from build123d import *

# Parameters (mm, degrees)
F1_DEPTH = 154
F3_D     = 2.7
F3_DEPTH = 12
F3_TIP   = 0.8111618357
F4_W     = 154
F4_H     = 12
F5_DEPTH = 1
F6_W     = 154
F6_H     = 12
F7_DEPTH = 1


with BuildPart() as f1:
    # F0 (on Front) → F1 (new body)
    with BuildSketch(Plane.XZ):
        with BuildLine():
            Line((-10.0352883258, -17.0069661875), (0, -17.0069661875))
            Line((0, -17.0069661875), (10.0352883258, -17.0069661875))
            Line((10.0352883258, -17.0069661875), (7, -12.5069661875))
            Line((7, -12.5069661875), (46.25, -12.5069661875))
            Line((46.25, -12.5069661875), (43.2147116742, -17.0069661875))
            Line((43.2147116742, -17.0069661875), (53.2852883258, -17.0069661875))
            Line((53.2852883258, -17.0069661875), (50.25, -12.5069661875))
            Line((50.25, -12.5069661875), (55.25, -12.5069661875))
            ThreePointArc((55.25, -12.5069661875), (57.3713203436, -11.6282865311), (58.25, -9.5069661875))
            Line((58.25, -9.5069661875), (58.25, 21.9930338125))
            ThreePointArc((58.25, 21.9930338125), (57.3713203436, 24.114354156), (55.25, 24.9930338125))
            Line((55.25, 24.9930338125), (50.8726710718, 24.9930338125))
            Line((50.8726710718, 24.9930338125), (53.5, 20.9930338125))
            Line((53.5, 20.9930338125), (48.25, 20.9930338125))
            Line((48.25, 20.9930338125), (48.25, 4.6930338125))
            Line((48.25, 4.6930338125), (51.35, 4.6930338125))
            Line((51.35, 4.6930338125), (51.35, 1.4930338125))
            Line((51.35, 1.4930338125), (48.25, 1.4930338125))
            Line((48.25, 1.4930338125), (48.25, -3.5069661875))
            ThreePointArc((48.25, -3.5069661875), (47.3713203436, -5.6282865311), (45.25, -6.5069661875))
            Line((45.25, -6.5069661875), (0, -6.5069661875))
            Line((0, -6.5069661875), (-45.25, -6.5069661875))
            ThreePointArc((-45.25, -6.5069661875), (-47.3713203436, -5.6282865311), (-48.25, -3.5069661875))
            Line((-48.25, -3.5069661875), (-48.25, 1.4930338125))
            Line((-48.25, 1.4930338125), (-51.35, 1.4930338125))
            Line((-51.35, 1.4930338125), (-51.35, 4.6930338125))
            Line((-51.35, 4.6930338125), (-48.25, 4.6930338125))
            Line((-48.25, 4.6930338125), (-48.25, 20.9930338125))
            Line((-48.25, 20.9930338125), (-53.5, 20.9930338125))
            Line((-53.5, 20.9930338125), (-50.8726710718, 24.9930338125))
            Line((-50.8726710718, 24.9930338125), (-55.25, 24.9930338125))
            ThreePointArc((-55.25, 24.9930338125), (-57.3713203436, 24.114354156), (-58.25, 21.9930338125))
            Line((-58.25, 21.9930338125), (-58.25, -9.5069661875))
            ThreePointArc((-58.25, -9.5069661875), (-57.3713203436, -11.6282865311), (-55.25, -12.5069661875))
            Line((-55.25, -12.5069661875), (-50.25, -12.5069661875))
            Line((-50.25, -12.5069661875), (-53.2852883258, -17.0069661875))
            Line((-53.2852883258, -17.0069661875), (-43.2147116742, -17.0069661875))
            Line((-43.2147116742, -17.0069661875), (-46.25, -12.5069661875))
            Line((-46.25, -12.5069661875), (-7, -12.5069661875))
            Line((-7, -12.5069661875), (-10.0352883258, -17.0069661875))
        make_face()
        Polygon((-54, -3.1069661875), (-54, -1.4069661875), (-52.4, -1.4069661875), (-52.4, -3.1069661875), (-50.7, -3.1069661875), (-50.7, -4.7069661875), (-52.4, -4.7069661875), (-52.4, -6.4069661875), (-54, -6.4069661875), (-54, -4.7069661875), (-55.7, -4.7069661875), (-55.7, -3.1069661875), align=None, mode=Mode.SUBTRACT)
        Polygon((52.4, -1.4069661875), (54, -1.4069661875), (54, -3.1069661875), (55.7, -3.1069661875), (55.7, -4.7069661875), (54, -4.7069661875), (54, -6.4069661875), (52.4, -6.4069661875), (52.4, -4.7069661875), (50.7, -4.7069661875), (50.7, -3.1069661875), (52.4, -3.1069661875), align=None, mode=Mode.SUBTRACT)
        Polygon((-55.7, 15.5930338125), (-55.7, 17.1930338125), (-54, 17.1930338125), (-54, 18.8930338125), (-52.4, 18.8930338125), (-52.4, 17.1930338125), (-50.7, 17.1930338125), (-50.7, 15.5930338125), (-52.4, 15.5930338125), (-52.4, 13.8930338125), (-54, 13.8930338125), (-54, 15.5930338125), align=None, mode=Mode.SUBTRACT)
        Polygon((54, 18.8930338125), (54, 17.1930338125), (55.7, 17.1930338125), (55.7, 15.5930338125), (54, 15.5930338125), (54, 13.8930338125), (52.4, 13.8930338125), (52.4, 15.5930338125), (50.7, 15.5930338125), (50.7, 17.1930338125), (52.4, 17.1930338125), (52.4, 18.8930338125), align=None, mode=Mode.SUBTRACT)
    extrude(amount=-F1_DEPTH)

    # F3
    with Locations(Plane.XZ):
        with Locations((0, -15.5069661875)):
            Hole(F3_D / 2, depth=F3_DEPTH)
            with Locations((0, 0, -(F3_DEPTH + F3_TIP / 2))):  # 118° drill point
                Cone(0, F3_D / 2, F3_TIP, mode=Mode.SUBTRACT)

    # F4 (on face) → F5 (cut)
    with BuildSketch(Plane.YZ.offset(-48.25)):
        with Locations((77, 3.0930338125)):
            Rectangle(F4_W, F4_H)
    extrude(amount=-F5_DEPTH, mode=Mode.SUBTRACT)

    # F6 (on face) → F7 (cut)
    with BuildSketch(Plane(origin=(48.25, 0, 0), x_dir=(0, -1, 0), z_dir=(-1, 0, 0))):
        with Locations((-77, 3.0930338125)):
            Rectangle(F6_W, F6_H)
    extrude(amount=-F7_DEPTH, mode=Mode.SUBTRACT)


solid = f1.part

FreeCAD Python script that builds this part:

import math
import FreeCAD as App
import Part
import Sketcher
Q = App.Units.Quantity


def add_polygon(sketch, points):
    """Adds a closed chain of lines whose ends are joined by coincident constraints."""
    first, n = sketch.GeometryCount, len(points)
    for a, b in zip(points, points[1:] + points[:1]):
        sketch.addGeometry(Part.LineSegment(App.Vector(*a, 0), App.Vector(*b, 0)), False)
    for i in range(n):
        sketch.addConstraint(Sketcher.Constraint("Coincident", first + i, 2, first + (i + 1) % n, 1))

doc = App.newDocument("Part")
body = doc.addObject("PartDesign::Body", "Body")

# Sketch on XZ plane
sketch1 = body.newObject("Sketcher::SketchObject", "Sketch")
sketch1.AttachmentSupport = (doc.getObject("XZ_Plane"), [""])
sketch1.MapMode = "FlatFace"
sketch1.addGeometry(Part.LineSegment(App.Vector(-10, -17, 0), App.Vector(10, -17, 0)), False)  # 0
sketch1.addGeometry(Part.LineSegment(App.Vector(10, -17, 0), App.Vector(7, -12.5, 0)), False)  # 1
sketch1.addGeometry(Part.LineSegment(App.Vector(7, -12.5, 0), App.Vector(46.2, -12.5, 0)), False)  # 2
sketch1.addGeometry(Part.LineSegment(App.Vector(46.2, -12.5, 0), App.Vector(43.2, -17, 0)), False)  # 3
sketch1.addGeometry(Part.LineSegment(App.Vector(43.2, -17, 0), App.Vector(53.3, -17, 0)), False)  # 4
sketch1.addGeometry(Part.LineSegment(App.Vector(53.3, -17, 0), App.Vector(50.2, -12.5, 0)), False)  # 5
sketch1.addGeometry(Part.LineSegment(App.Vector(50.2, -12.5, 0), App.Vector(55.2, -12.5, 0)), False)  # 6
sketch1.addGeometry(Part.ArcOfCircle(Part.Circle(App.Vector(55.2, -9.5, 0), App.Vector(0, 0, 1), 3), math.radians(-90), math.radians(0)), False)  # 7
sketch1.addGeometry(Part.LineSegment(App.Vector(58.2, -9.5, 0), App.Vector(58.2, 22, 0)), False)  # 8
sketch1.addGeometry(Part.ArcOfCircle(Part.Circle(App.Vector(55.2, 22, 0), App.Vector(0, 0, 1), 3), math.radians(0), math.radians(90)), False)  # 9
sketch1.addGeometry(Part.LineSegment(App.Vector(55.2, 25, 0), App.Vector(50.9, 25, 0)), False)  # 10
sketch1.addGeometry(Part.LineSegment(App.Vector(50.9, 25, 0), App.Vector(53.5, 21, 0)), False)  # 11
sketch1.addGeometry(Part.LineSegment(App.Vector(53.5, 21, 0), App.Vector(48.2, 21, 0)), False)  # 12
sketch1.addGeometry(Part.LineSegment(App.Vector(48.2, 21, 0), App.Vector(48.2, 4.7, 0)), False)  # 13
sketch1.addGeometry(Part.LineSegment(App.Vector(48.2, 4.7, 0), App.Vector(51.4, 4.7, 0)), False)  # 14
sketch1.addGeometry(Part.LineSegment(App.Vector(51.4, 4.7, 0), App.Vector(51.4, 1.5, 0)), False)  # 15
sketch1.addGeometry(Part.LineSegment(App.Vector(51.4, 1.5, 0), App.Vector(48.2, 1.5, 0)), False)  # 16
sketch1.addGeometry(Part.LineSegment(App.Vector(48.2, 1.5, 0), App.Vector(48.2, -3.5, 0)), False)  # 17
sketch1.addGeometry(Part.ArcOfCircle(Part.Circle(App.Vector(45.2, -3.5, 0), App.Vector(0, 0, 1), 3), math.radians(-90), math.radians(0)), False)  # 18
sketch1.addGeometry(Part.LineSegment(App.Vector(45.2, -6.5, 0), App.Vector(-45.2, -6.5, 0)), False)  # 19
sketch1.addGeometry(Part.ArcOfCircle(Part.Circle(App.Vector(-45.2, -3.5, 0), App.Vector(0, 0, 1), 3), math.radians(180), math.radians(270)), False)  # 20
sketch1.addGeometry(Part.LineSegment(App.Vector(-48.2, -3.5, 0), App.Vector(-48.2, 1.5, 0)), False)  # 21
sketch1.addGeometry(Part.LineSegment(App.Vector(-48.2, 1.5, 0), App.Vector(-51.4, 1.5, 0)), False)  # 22
sketch1.addGeometry(Part.LineSegment(App.Vector(-51.4, 1.5, 0), App.Vector(-51.4, 4.7, 0)), False)  # 23
sketch1.addGeometry(Part.LineSegment(App.Vector(-51.4, 4.7, 0), App.Vector(-48.2, 4.7, 0)), False)  # 24
sketch1.addGeometry(Part.LineSegment(App.Vector(-48.2, 4.7, 0), App.Vector(-48.2, 21, 0)), False)  # 25
sketch1.addGeometry(Part.LineSegment(App.Vector(-48.2, 21, 0), App.Vector(-53.5, 21, 0)), False)  # 26
sketch1.addGeometry(Part.LineSegment(App.Vector(-53.5, 21, 0), App.Vector(-50.9, 25, 0)), False)  # 27
sketch1.addGeometry(Part.LineSegment(App.Vector(-50.9, 25, 0), App.Vector(-55.2, 25, 0)), False)  # 28
sketch1.addGeometry(Part.ArcOfCircle(Part.Circle(App.Vector(-55.2, 22, 0), App.Vector(0, 0, 1), 3), math.radians(90), math.radians(180)), False)  # 29
sketch1.addGeometry(Part.LineSegment(App.Vector(-58.2, 22, 0), App.Vector(-58.2, -9.5, 0)), False)  # 30
sketch1.addGeometry(Part.ArcOfCircle(Part.Circle(App.Vector(-55.2, -9.5, 0), App.Vector(0, 0, 1), 3), math.radians(180), math.radians(270)), False)  # 31
sketch1.addGeometry(Part.LineSegment(App.Vector(-55.2, -12.5, 0), App.Vector(-50.2, -12.5, 0)), False)  # 32
sketch1.addGeometry(Part.LineSegment(App.Vector(-50.2, -12.5, 0), App.Vector(-53.3, -17, 0)), False)  # 33
sketch1.addGeometry(Part.LineSegment(App.Vector(-53.3, -17, 0), App.Vector(-43.2, -17, 0)), False)  # 34
sketch1.addGeometry(Part.LineSegment(App.Vector(-43.2, -17, 0), App.Vector(-46.2, -12.5, 0)), False)  # 35
sketch1.addGeometry(Part.LineSegment(App.Vector(-46.2, -12.5, 0), App.Vector(-7, -12.5, 0)), False)  # 36
sketch1.addGeometry(Part.LineSegment(App.Vector(-7, -12.5, 0), App.Vector(-10, -17, 0)), False)  # 37
add_polygon(sketch1, [(-55.7, -3.1), (-54, -3.1), (-54, -1.4), (-52.4, -1.4), (-52.4, -3.1), (-50.7, -3.1), (-50.7, -4.7), (-52.4, -4.7), (-52.4, -6.4), (-54, -6.4), (-54, -4.7), (-55.7, -4.7)])  # lines 38-49
add_polygon(sketch1, [(52.4, -3.1), (52.4, -1.4), (54, -1.4), (54, -3.1), (55.7, -3.1), (55.7, -4.7), (54, -4.7), (54, -6.4), (52.4, -6.4), (52.4, -4.7), (50.7, -4.7), (50.7, -3.1)])  # lines 50-61
add_polygon(sketch1, [(-54, 15.6), (-55.7, 15.6), (-55.7, 17.2), (-54, 17.2), (-54, 18.9), (-52.4, 18.9), (-52.4, 17.2), (-50.7, 17.2), (-50.7, 15.6), (-52.4, 15.6), (-52.4, 13.9), (-54, 13.9)])  # lines 62-73
add_polygon(sketch1, [(52.4, 18.9), (54, 18.9), (54, 17.2), (55.7, 17.2), (55.7, 15.6), (54, 15.6), (54, 13.9), (52.4, 13.9), (52.4, 15.6), (50.7, 15.6), (50.7, 17.2), (52.4, 17.2)])  # lines 74-85
sketch1.addConstraint(Sketcher.Constraint("Coincident", 0, 2, 1, 1))
sketch1.addConstraint(Sketcher.Constraint("Coincident", 1, 2, 2, 1))
sketch1.addConstraint(Sketcher.Constraint("Coincident", 2, 2, 3, 1))
sketch1.addConstraint(Sketcher.Constraint("Coincident", 3, 2, 4, 1))
sketch1.addConstraint(Sketcher.Constraint("Coincident", 4, 2, 5, 1))
sketch1.addConstraint(Sketcher.Constraint("Coincident", 5, 2, 6, 1))
sketch1.addConstraint(Sketcher.Constraint("Tangent", 6, 2, 7, 1))
sketch1.addConstraint(Sketcher.Constraint("Tangent", 7, 2, 8, 1))
sketch1.addConstraint(Sketcher.Constraint("Tangent", 8, 2, 9, 1))
sketch1.addConstraint(Sketcher.Constraint("Tangent", 9, 2, 10, 1))
sketch1.addConstraint(Sketcher.Constraint("Coincident", 10, 2, 11, 1))
sketch1.addConstraint(Sketcher.Constraint("Coincident", 11, 2, 12, 1))
sketch1.addConstraint(Sketcher.Constraint("Coincident", 12, 2, 13, 1))
sketch1.addConstraint(Sketcher.Constraint("Coincident", 13, 2, 14, 1))
sketch1.addConstraint(Sketcher.Constraint("Coincident", 14, 2, 15, 1))
sketch1.addConstraint(Sketcher.Constraint("Coincident", 15, 2, 16, 1))
sketch1.addConstraint(Sketcher.Constraint("Coincident", 16, 2, 17, 1))
sketch1.addConstraint(Sketcher.Constraint("Tangent", 17, 2, 18, 2))
sketch1.addConstraint(Sketcher.Constraint("Tangent", 18, 1, 19, 1))
sketch1.addConstraint(Sketcher.Constraint("Tangent", 19, 2, 20, 2))
sketch1.addConstraint(Sketcher.Constraint("Tangent", 20, 1, 21, 1))
sketch1.addConstraint(Sketcher.Constraint("Coincident", 21, 2, 22, 1))
sketch1.addConstraint(Sketcher.Constraint("Coincident", 22, 2, 23, 1))
sketch1.addConstraint(Sketcher.Constraint("Coincident", 23, 2, 24, 1))
sketch1.addConstraint(Sketcher.Constraint("Coincident", 24, 2, 25, 1))
sketch1.addConstraint(Sketcher.Constraint("Coincident", 25, 2, 26, 1))
sketch1.addConstraint(Sketcher.Constraint("Coincident", 26, 2, 27, 1))
sketch1.addConstraint(Sketcher.Constraint("Coincident", 27, 2, 28, 1))
sketch1.addConstraint(Sketcher.Constraint("Tangent", 28, 2, 29, 1))
sketch1.addConstraint(Sketcher.Constraint("Tangent", 29, 2, 30, 1))
sketch1.addConstraint(Sketcher.Constraint("Tangent", 30, 2, 31, 1))
sketch1.addConstraint(Sketcher.Constraint("Tangent", 31, 2, 32, 1))
sketch1.addConstraint(Sketcher.Constraint("Coincident", 32, 2, 33, 1))
sketch1.addConstraint(Sketcher.Constraint("Coincident", 33, 2, 34, 1))
sketch1.addConstraint(Sketcher.Constraint("Coincident", 34, 2, 35, 1))
sketch1.addConstraint(Sketcher.Constraint("Coincident", 35, 2, 36, 1))
sketch1.addConstraint(Sketcher.Constraint("Coincident", 36, 2, 37, 1))
sketch1.addConstraint(Sketcher.Constraint("Coincident", 37, 2, 0, 1))
sketch1.addConstraint(Sketcher.Constraint("Horizontal", 0))
sketch1.addConstraint(Sketcher.Constraint("Horizontal", 2))
sketch1.addConstraint(Sketcher.Constraint("Horizontal", 4))
sketch1.addConstraint(Sketcher.Constraint("Horizontal", 6))
sketch1.addConstraint(Sketcher.Constraint("Vertical", 8))
sketch1.addConstraint(Sketcher.Constraint("Horizontal", 10))
sketch1.addConstraint(Sketcher.Constraint("Horizontal", 12))
sketch1.addConstraint(Sketcher.Constraint("Vertical", 13))
sketch1.addConstraint(Sketcher.Constraint("Horizontal", 14))
sketch1.addConstraint(Sketcher.Constraint("Vertical", 15))
sketch1.addConstraint(Sketcher.Constraint("Horizontal", 16))
sketch1.addConstraint(Sketcher.Constraint("Vertical", 17))
sketch1.addConstraint(Sketcher.Constraint("Horizontal", 19))
sketch1.addConstraint(Sketcher.Constraint("Vertical", 21))
sketch1.addConstraint(Sketcher.Constraint("Horizontal", 22))
sketch1.addConstraint(Sketcher.Constraint("Vertical", 23))
sketch1.addConstraint(Sketcher.Constraint("Horizontal", 24))
sketch1.addConstraint(Sketcher.Constraint("Vertical", 25))
sketch1.addConstraint(Sketcher.Constraint("Horizontal", 26))
sketch1.addConstraint(Sketcher.Constraint("Horizontal", 28))
sketch1.addConstraint(Sketcher.Constraint("Vertical", 30))
sketch1.addConstraint(Sketcher.Constraint("Horizontal", 32))
sketch1.addConstraint(Sketcher.Constraint("Horizontal", 34))
sketch1.addConstraint(Sketcher.Constraint("Horizontal", 36))
sketch1.addConstraint(Sketcher.Constraint("Horizontal", 38))
sketch1.addConstraint(Sketcher.Constraint("Vertical", 39))
sketch1.addConstraint(Sketcher.Constraint("Horizontal", 40))
sketch1.addConstraint(Sketcher.Constraint("Vertical", 41))
sketch1.addConstraint(Sketcher.Constraint("Horizontal", 42))
sketch1.addConstraint(Sketcher.Constraint("Vertical", 43))
sketch1.addConstraint(Sketcher.Constraint("Horizontal", 44))
sketch1.addConstraint(Sketcher.Constraint("Vertical", 45))
sketch1.addConstraint(Sketcher.Constraint("Horizontal", 46))
sketch1.addConstraint(Sketcher.Constraint("Vertical", 47))
sketch1.addConstraint(Sketcher.Constraint("Horizontal", 48))
sketch1.addConstraint(Sketcher.Constraint("Vertical", 49))
sketch1.addConstraint(Sketcher.Constraint("Vertical", 50))
sketch1.addConstraint(Sketcher.Constraint("Horizontal", 51))
sketch1.addConstraint(Sketcher.Constraint("Vertical", 52))
sketch1.addConstraint(Sketcher.Constraint("Horizontal", 53))
sketch1.addConstraint(Sketcher.Constraint("Vertical", 54))
sketch1.addConstraint(Sketcher.Constraint("Horizontal", 55))
sketch1.addConstraint(Sketcher.Constraint("Vertical", 56))
sketch1.addConstraint(Sketcher.Constraint("Horizontal", 57))
sketch1.addConstraint(Sketcher.Constraint("Vertical", 58))
sketch1.addConstraint(Sketcher.Constraint("Horizontal", 59))
sketch1.addConstraint(Sketcher.Constraint("Vertical", 60))
sketch1.addConstraint(Sketcher.Constraint("Horizontal", 61))
sketch1.addConstraint(Sketcher.Constraint("Horizontal", 62))
sketch1.addConstraint(Sketcher.Constraint("Vertical", 63))
sketch1.addConstraint(Sketcher.Constraint("Horizontal", 64))
sketch1.addConstraint(Sketcher.Constraint("Vertical", 65))
sketch1.addConstraint(Sketcher.Constraint("Horizontal", 66))
sketch1.addConstraint(Sketcher.Constraint("Vertical", 67))
sketch1.addConstraint(Sketcher.Constraint("Horizontal", 68))
sketch1.addConstraint(Sketcher.Constraint("Vertical", 69))
sketch1.addConstraint(Sketcher.Constraint("Horizontal", 70))
sketch1.addConstraint(Sketcher.Constraint("Vertical", 71))
sketch1.addConstraint(Sketcher.Constraint("Horizontal", 72))
sketch1.addConstraint(Sketcher.Constraint("Vertical", 73))
sketch1.addConstraint(Sketcher.Constraint("Horizontal", 74))
sketch1.addConstraint(Sketcher.Constraint("Vertical", 75))
sketch1.addConstraint(Sketcher.Constraint("Horizontal", 76))
sketch1.addConstraint(Sketcher.Constraint("Vertical", 77))
sketch1.addConstraint(Sketcher.Constraint("Horizontal", 78))
sketch1.addConstraint(Sketcher.Constraint("Vertical", 79))
sketch1.addConstraint(Sketcher.Constraint("Horizontal", 80))
sketch1.addConstraint(Sketcher.Constraint("Vertical", 81))
sketch1.addConstraint(Sketcher.Constraint("Horizontal", 82))
sketch1.addConstraint(Sketcher.Constraint("Vertical", 83))
sketch1.addConstraint(Sketcher.Constraint("Horizontal", 84))
sketch1.addConstraint(Sketcher.Constraint("Vertical", 85))
sketch1.addConstraint(Sketcher.Constraint("Equal", 7, 9))
sketch1.addConstraint(Sketcher.Constraint("Equal", 9, 18))
sketch1.addConstraint(Sketcher.Constraint("Equal", 18, 20))
sketch1.addConstraint(Sketcher.Constraint("Equal", 20, 29))
sketch1.addConstraint(Sketcher.Constraint("Equal", 29, 31))
sketch1.addConstraint(Sketcher.Constraint("Symmetric", 9, 3, 29, 3, -2))
sketch1.addConstraint(Sketcher.Constraint("Symmetric", 16, 2, 21, 2, -2))
sketch1.addConstraint(Sketcher.Constraint("Symmetric", 14, 2, 23, 2, -2))
sketch1.addConstraint(Sketcher.Constraint("Symmetric", 12, 2, 25, 2, -2))
sketch1.addConstraint(Sketcher.Constraint("Symmetric", 5, 2, 32, 2, -2))
sketch1.addConstraint(Sketcher.Constraint("Symmetric", 4, 2, 33, 2, -2))
sketch1.addConstraint(Sketcher.Constraint("Symmetric", 2, 2, 35, 2, -2))
sketch1.addConstraint(Sketcher.Constraint("Symmetric", 40, 2, 50, 2, -2))
sketch1.addConstraint(Sketcher.Constraint("Symmetric", 38, 2, 52, 2, -2))
sketch1.addConstraint(Sketcher.Constraint("Symmetric", 48, 2, 54, 2, -2))
sketch1.addConstraint(Sketcher.Constraint("Symmetric", 46, 2, 56, 2, -2))
sketch1.addConstraint(Sketcher.Constraint("Symmetric", 44, 2, 58, 2, -2))
sketch1.addConstraint(Sketcher.Constraint("Symmetric", 42, 2, 60, 2, -2))
sketch1.addConstraint(Sketcher.Constraint("Symmetric", 65, 2, 74, 2, -2))
sketch1.addConstraint(Sketcher.Constraint("Symmetric", 63, 2, 76, 2, -2))
sketch1.addConstraint(Sketcher.Constraint("Symmetric", 73, 2, 78, 2, -2))
sketch1.addConstraint(Sketcher.Constraint("Symmetric", 71, 2, 80, 2, -2))
sketch1.addConstraint(Sketcher.Constraint("Symmetric", 69, 2, 82, 2, -2))
sketch1.addConstraint(Sketcher.Constraint("Symmetric", 67, 2, 84, 2, -2))
sketch1.addConstraint(Sketcher.Constraint("Parallel", 1, 5))
sketch1.addConstraint(Sketcher.Constraint("Parallel", 3, 33))
sketch1.addConstraint(Sketcher.Constraint("Parallel", 5, 35))
sketch1.addConstraint(Sketcher.Constraint("Parallel", 33, 37))
sketch1.addConstraint(Sketcher.Constraint("Horizontal", 0, 2, 3, 2))
sketch1.addConstraint(Sketcher.Constraint("Horizontal", 2, 2, 5, 2))
sketch1.addConstraint(Sketcher.Constraint("Horizontal", 38, 2, 41, 2))
sketch1.addConstraint(Sketcher.Constraint("Horizontal", 44, 2, 47, 2))
sketch1.addConstraint(Sketcher.Constraint("Horizontal", 64, 2, 67, 2))
sketch1.addConstraint(Sketcher.Constraint("Horizontal", 62, 2, 69, 2))
sketch1.addConstraint(Sketcher.Constraint("Vertical", 13, 2, 16, 2))
sketch1.addConstraint(Sketcher.Constraint("Vertical", 41, 2, 44, 2))
sketch1.addConstraint(Sketcher.Constraint("Vertical", 39, 2, 46, 2))
sketch1.addConstraint(Sketcher.Constraint("Vertical", 49, 2, 62, 2))
sketch1.addConstraint(Sketcher.Constraint("Vertical", 47, 2, 64, 2))
sketch1.addConstraint(Sketcher.Constraint("Vertical", 45, 2, 66, 2))
sketch1.addConstraint(Sketcher.Constraint("Vertical", 43, 2, 68, 2))
sketch1.addConstraint(Sketcher.Constraint("Vertical", 67, 2, 70, 2))
sketch1.addConstraint(Sketcher.Constraint("Vertical", 65, 2, 72, 2))
sketch1.addConstraint(Sketcher.Constraint("Equal", 12, 26))
sketch1.addConstraint(Sketcher.Constraint("Equal", 10, 28))
sketch1.addConstraint(Sketcher.Constraint("Equal", 2, 36))
sketch1.addConstraint(Sketcher.Constraint("Equal", 38, 42))
sketch1.addConstraint(Sketcher.Constraint("Equal", 32, 17))
sketch1.addConstraint(Sketcher.Constraint("Equal", 84, 39))
sketch1.addConstraint(Sketcher.Constraint("Equal", 80, 43))
sketch1.addConstraint(Sketcher.Constraint("Equal", 41, 45))
sketch1.addConstraint(Sketcher.Constraint("Equal", 60, 63))
sketch1.addConstraint(Sketcher.Constraint("Equal", 58, 65))
sketch1.addConstraint(Sketcher.Constraint("Equal", 67, 71))
sketch1.addConstraint(Sketcher.Constraint("Radius", 7, Q("3 mm")))
sketch1.addConstraint(Sketcher.Constraint("DistanceX", 6, 1, 6, 2, Q("5 mm")))
sketch1.addConstraint(Sketcher.Constraint("Angle", 1, Q("124 deg")))
sketch1.addConstraint(Sketcher.Constraint("DistanceX", 14, 1, 14, 2, Q("3.1 mm")))
sketch1.addConstraint(Sketcher.Constraint("DistanceX", 19, 2, 19, 1, Q("90.5 mm")))
sketch1.addConstraint(Sketcher.Constraint("DistanceX", 38, 1, 38, 2, Q("1.7 mm")))
sketch1.addConstraint(Sketcher.Constraint("DistanceX", 40, 1, 40, 2, Q("1.6 mm")))
sketch1.addConstraint(Sketcher.Constraint("DistanceY", 8, 1, 8, 2, Q("31.5 mm")))
sketch1.addConstraint(Sketcher.Constraint("DistanceY", 13, 2, 13, 1, Q("16.3 mm")))
sketch1.addConstraint(Sketcher.Constraint("DistanceY", 15, 2, 15, 1, Q("3.2 mm")))
sketch1.addConstraint(Sketcher.Constraint("DistanceX", -1, 1, 1, 2, Q("7 mm")))
sketch1.addConstraint(Sketcher.Constraint("DistanceX", 38, 2, -1, 1, Q("54 mm")))
sketch1.addConstraint(Sketcher.Constraint("DistanceX", 2, 1, 2, 2, Q("39.25 mm")))
sketch1.addConstraint(Sketcher.Constraint("DistanceX", 12, 2, 12, 1, Q("5.25 mm")))
sketch1.addConstraint(Sketcher.Constraint("DistanceX", -1, 1, 7, 3, Q("55.25 mm")))
sketch1.addConstraint(Sketcher.Constraint("DistanceX", 10, 2, 10, 1, Q("4.377329 mm")))
sketch1.addConstraint(Sketcher.Constraint("Distance", 1, Q("5.427981 mm")))
sketch1.addConstraint(Sketcher.Constraint("Distance", 11, Q("4.785693 mm")))
sketch1.addConstraint(Sketcher.Constraint("DistanceY", 7, 3, -1, 1, Q("9.506966 mm")))
sketch1.addConstraint(Sketcher.Constraint("DistanceY", 38, 2, -1, 1, Q("3.106966 mm")))
sketch1.addConstraint(Sketcher.Constraint("DistanceY", -1, 1, 62, 2, Q("15.593034 mm")))
pad1 = body.newObject("PartDesign::Pad", "Pad")
pad1.Profile = sketch1
pad1.Length = 154
pad1.Reversed = True

# Sketch on XZ plane
sketch2 = body.newObject("Sketcher::SketchObject", "Sketch001")
sketch2.AttachmentSupport = (doc.getObject("XZ_Plane"), [""])
sketch2.MapMode = "FlatFace"
sketch2.addGeometry(Part.Circle(App.Vector(0, -15.5, 0), App.Vector(0, 0, 1), 1.4), False)
sketch2.addConstraint(Sketcher.Constraint("PointOnObject", 0, 3, -2))
sketch2.addConstraint(Sketcher.Constraint("Diameter", 0, Q("2.7 mm")))
sketch2.addConstraint(Sketcher.Constraint("DistanceY", 0, 3, -1, 1, Q("15.506966 mm")))
doc.recompute()
hole = body.newObject("PartDesign::Hole", "Hole")
hole.Profile = sketch2
hole.ThreadType = "None"
hole.Diameter = 2.7
hole.DepthType = "Dimension"
hole.Depth = 12
hole.DrillPoint = "Angled"
hole.DrillPointAngle = 118

# Sketch on YZ plane
sketch3 = body.newObject("Sketcher::SketchObject", "Sketch002")
sketch3.AttachmentSupport = (doc.getObject("YZ_Plane"), [""])
sketch3.MapMode = "FlatFace"
sketch3.AttachmentOffset = App.Placement(App.Vector(0, 0, -48.25), App.Rotation())
add_polygon(sketch3, [(0, 9), (0, -3), (154, -3), (154, 9)])  # lines 0-3
sketch3.addConstraint(Sketcher.Constraint("Vertical", 0))
sketch3.addConstraint(Sketcher.Constraint("Horizontal", 1))
sketch3.addConstraint(Sketcher.Constraint("Vertical", 2))
sketch3.addConstraint(Sketcher.Constraint("Horizontal", 3))
sketch3.addConstraint(Sketcher.Constraint("PointOnObject", 0, 2, -2))
sketch3.addConstraint(Sketcher.Constraint("DistanceX", 1, 1, 1, 2, Q("154 mm")))
sketch3.addConstraint(Sketcher.Constraint("DistanceY", 0, 2, 0, 1, Q("12 mm")))
sketch3.addConstraint(Sketcher.Constraint("DistanceY", 0, 2, -1, 1, Q("2.906966 mm")))
pocket1 = body.newObject("PartDesign::Pocket", "Pocket")
pocket1.Profile = sketch3
pocket1.Length = 1

# Sketch on YZ plane
sketch4 = body.newObject("Sketcher::SketchObject", "Sketch003")
sketch4.AttachmentSupport = (doc.getObject("YZ_Plane"), [""])
sketch4.MapMode = "FlatFace"
sketch4.AttachmentOffset = App.Placement(App.Vector(0, 0, 48.25), App.Rotation())
add_polygon(sketch4, [(154, 9), (154, -3), (0, -3), (0, 9)])  # lines 0-3
sketch4.addConstraint(Sketcher.Constraint("Vertical", 0))
sketch4.addConstraint(Sketcher.Constraint("Horizontal", 1))
sketch4.addConstraint(Sketcher.Constraint("Vertical", 2))
sketch4.addConstraint(Sketcher.Constraint("Horizontal", 3))
sketch4.addConstraint(Sketcher.Constraint("PointOnObject", 1, 2, -2))
sketch4.addConstraint(Sketcher.Constraint("DistanceX", 1, 2, 1, 1, Q("154 mm")))
sketch4.addConstraint(Sketcher.Constraint("DistanceY", 0, 2, 0, 1, Q("12 mm")))
sketch4.addConstraint(Sketcher.Constraint("DistanceY", 0, 2, -1, 1, Q("2.906966 mm")))
pocket2 = body.newObject("PartDesign::Pocket", "Pocket001")
pocket2.Profile = sketch4
pocket2.Length = 1
pocket2.Reversed = True

doc.recompute()
